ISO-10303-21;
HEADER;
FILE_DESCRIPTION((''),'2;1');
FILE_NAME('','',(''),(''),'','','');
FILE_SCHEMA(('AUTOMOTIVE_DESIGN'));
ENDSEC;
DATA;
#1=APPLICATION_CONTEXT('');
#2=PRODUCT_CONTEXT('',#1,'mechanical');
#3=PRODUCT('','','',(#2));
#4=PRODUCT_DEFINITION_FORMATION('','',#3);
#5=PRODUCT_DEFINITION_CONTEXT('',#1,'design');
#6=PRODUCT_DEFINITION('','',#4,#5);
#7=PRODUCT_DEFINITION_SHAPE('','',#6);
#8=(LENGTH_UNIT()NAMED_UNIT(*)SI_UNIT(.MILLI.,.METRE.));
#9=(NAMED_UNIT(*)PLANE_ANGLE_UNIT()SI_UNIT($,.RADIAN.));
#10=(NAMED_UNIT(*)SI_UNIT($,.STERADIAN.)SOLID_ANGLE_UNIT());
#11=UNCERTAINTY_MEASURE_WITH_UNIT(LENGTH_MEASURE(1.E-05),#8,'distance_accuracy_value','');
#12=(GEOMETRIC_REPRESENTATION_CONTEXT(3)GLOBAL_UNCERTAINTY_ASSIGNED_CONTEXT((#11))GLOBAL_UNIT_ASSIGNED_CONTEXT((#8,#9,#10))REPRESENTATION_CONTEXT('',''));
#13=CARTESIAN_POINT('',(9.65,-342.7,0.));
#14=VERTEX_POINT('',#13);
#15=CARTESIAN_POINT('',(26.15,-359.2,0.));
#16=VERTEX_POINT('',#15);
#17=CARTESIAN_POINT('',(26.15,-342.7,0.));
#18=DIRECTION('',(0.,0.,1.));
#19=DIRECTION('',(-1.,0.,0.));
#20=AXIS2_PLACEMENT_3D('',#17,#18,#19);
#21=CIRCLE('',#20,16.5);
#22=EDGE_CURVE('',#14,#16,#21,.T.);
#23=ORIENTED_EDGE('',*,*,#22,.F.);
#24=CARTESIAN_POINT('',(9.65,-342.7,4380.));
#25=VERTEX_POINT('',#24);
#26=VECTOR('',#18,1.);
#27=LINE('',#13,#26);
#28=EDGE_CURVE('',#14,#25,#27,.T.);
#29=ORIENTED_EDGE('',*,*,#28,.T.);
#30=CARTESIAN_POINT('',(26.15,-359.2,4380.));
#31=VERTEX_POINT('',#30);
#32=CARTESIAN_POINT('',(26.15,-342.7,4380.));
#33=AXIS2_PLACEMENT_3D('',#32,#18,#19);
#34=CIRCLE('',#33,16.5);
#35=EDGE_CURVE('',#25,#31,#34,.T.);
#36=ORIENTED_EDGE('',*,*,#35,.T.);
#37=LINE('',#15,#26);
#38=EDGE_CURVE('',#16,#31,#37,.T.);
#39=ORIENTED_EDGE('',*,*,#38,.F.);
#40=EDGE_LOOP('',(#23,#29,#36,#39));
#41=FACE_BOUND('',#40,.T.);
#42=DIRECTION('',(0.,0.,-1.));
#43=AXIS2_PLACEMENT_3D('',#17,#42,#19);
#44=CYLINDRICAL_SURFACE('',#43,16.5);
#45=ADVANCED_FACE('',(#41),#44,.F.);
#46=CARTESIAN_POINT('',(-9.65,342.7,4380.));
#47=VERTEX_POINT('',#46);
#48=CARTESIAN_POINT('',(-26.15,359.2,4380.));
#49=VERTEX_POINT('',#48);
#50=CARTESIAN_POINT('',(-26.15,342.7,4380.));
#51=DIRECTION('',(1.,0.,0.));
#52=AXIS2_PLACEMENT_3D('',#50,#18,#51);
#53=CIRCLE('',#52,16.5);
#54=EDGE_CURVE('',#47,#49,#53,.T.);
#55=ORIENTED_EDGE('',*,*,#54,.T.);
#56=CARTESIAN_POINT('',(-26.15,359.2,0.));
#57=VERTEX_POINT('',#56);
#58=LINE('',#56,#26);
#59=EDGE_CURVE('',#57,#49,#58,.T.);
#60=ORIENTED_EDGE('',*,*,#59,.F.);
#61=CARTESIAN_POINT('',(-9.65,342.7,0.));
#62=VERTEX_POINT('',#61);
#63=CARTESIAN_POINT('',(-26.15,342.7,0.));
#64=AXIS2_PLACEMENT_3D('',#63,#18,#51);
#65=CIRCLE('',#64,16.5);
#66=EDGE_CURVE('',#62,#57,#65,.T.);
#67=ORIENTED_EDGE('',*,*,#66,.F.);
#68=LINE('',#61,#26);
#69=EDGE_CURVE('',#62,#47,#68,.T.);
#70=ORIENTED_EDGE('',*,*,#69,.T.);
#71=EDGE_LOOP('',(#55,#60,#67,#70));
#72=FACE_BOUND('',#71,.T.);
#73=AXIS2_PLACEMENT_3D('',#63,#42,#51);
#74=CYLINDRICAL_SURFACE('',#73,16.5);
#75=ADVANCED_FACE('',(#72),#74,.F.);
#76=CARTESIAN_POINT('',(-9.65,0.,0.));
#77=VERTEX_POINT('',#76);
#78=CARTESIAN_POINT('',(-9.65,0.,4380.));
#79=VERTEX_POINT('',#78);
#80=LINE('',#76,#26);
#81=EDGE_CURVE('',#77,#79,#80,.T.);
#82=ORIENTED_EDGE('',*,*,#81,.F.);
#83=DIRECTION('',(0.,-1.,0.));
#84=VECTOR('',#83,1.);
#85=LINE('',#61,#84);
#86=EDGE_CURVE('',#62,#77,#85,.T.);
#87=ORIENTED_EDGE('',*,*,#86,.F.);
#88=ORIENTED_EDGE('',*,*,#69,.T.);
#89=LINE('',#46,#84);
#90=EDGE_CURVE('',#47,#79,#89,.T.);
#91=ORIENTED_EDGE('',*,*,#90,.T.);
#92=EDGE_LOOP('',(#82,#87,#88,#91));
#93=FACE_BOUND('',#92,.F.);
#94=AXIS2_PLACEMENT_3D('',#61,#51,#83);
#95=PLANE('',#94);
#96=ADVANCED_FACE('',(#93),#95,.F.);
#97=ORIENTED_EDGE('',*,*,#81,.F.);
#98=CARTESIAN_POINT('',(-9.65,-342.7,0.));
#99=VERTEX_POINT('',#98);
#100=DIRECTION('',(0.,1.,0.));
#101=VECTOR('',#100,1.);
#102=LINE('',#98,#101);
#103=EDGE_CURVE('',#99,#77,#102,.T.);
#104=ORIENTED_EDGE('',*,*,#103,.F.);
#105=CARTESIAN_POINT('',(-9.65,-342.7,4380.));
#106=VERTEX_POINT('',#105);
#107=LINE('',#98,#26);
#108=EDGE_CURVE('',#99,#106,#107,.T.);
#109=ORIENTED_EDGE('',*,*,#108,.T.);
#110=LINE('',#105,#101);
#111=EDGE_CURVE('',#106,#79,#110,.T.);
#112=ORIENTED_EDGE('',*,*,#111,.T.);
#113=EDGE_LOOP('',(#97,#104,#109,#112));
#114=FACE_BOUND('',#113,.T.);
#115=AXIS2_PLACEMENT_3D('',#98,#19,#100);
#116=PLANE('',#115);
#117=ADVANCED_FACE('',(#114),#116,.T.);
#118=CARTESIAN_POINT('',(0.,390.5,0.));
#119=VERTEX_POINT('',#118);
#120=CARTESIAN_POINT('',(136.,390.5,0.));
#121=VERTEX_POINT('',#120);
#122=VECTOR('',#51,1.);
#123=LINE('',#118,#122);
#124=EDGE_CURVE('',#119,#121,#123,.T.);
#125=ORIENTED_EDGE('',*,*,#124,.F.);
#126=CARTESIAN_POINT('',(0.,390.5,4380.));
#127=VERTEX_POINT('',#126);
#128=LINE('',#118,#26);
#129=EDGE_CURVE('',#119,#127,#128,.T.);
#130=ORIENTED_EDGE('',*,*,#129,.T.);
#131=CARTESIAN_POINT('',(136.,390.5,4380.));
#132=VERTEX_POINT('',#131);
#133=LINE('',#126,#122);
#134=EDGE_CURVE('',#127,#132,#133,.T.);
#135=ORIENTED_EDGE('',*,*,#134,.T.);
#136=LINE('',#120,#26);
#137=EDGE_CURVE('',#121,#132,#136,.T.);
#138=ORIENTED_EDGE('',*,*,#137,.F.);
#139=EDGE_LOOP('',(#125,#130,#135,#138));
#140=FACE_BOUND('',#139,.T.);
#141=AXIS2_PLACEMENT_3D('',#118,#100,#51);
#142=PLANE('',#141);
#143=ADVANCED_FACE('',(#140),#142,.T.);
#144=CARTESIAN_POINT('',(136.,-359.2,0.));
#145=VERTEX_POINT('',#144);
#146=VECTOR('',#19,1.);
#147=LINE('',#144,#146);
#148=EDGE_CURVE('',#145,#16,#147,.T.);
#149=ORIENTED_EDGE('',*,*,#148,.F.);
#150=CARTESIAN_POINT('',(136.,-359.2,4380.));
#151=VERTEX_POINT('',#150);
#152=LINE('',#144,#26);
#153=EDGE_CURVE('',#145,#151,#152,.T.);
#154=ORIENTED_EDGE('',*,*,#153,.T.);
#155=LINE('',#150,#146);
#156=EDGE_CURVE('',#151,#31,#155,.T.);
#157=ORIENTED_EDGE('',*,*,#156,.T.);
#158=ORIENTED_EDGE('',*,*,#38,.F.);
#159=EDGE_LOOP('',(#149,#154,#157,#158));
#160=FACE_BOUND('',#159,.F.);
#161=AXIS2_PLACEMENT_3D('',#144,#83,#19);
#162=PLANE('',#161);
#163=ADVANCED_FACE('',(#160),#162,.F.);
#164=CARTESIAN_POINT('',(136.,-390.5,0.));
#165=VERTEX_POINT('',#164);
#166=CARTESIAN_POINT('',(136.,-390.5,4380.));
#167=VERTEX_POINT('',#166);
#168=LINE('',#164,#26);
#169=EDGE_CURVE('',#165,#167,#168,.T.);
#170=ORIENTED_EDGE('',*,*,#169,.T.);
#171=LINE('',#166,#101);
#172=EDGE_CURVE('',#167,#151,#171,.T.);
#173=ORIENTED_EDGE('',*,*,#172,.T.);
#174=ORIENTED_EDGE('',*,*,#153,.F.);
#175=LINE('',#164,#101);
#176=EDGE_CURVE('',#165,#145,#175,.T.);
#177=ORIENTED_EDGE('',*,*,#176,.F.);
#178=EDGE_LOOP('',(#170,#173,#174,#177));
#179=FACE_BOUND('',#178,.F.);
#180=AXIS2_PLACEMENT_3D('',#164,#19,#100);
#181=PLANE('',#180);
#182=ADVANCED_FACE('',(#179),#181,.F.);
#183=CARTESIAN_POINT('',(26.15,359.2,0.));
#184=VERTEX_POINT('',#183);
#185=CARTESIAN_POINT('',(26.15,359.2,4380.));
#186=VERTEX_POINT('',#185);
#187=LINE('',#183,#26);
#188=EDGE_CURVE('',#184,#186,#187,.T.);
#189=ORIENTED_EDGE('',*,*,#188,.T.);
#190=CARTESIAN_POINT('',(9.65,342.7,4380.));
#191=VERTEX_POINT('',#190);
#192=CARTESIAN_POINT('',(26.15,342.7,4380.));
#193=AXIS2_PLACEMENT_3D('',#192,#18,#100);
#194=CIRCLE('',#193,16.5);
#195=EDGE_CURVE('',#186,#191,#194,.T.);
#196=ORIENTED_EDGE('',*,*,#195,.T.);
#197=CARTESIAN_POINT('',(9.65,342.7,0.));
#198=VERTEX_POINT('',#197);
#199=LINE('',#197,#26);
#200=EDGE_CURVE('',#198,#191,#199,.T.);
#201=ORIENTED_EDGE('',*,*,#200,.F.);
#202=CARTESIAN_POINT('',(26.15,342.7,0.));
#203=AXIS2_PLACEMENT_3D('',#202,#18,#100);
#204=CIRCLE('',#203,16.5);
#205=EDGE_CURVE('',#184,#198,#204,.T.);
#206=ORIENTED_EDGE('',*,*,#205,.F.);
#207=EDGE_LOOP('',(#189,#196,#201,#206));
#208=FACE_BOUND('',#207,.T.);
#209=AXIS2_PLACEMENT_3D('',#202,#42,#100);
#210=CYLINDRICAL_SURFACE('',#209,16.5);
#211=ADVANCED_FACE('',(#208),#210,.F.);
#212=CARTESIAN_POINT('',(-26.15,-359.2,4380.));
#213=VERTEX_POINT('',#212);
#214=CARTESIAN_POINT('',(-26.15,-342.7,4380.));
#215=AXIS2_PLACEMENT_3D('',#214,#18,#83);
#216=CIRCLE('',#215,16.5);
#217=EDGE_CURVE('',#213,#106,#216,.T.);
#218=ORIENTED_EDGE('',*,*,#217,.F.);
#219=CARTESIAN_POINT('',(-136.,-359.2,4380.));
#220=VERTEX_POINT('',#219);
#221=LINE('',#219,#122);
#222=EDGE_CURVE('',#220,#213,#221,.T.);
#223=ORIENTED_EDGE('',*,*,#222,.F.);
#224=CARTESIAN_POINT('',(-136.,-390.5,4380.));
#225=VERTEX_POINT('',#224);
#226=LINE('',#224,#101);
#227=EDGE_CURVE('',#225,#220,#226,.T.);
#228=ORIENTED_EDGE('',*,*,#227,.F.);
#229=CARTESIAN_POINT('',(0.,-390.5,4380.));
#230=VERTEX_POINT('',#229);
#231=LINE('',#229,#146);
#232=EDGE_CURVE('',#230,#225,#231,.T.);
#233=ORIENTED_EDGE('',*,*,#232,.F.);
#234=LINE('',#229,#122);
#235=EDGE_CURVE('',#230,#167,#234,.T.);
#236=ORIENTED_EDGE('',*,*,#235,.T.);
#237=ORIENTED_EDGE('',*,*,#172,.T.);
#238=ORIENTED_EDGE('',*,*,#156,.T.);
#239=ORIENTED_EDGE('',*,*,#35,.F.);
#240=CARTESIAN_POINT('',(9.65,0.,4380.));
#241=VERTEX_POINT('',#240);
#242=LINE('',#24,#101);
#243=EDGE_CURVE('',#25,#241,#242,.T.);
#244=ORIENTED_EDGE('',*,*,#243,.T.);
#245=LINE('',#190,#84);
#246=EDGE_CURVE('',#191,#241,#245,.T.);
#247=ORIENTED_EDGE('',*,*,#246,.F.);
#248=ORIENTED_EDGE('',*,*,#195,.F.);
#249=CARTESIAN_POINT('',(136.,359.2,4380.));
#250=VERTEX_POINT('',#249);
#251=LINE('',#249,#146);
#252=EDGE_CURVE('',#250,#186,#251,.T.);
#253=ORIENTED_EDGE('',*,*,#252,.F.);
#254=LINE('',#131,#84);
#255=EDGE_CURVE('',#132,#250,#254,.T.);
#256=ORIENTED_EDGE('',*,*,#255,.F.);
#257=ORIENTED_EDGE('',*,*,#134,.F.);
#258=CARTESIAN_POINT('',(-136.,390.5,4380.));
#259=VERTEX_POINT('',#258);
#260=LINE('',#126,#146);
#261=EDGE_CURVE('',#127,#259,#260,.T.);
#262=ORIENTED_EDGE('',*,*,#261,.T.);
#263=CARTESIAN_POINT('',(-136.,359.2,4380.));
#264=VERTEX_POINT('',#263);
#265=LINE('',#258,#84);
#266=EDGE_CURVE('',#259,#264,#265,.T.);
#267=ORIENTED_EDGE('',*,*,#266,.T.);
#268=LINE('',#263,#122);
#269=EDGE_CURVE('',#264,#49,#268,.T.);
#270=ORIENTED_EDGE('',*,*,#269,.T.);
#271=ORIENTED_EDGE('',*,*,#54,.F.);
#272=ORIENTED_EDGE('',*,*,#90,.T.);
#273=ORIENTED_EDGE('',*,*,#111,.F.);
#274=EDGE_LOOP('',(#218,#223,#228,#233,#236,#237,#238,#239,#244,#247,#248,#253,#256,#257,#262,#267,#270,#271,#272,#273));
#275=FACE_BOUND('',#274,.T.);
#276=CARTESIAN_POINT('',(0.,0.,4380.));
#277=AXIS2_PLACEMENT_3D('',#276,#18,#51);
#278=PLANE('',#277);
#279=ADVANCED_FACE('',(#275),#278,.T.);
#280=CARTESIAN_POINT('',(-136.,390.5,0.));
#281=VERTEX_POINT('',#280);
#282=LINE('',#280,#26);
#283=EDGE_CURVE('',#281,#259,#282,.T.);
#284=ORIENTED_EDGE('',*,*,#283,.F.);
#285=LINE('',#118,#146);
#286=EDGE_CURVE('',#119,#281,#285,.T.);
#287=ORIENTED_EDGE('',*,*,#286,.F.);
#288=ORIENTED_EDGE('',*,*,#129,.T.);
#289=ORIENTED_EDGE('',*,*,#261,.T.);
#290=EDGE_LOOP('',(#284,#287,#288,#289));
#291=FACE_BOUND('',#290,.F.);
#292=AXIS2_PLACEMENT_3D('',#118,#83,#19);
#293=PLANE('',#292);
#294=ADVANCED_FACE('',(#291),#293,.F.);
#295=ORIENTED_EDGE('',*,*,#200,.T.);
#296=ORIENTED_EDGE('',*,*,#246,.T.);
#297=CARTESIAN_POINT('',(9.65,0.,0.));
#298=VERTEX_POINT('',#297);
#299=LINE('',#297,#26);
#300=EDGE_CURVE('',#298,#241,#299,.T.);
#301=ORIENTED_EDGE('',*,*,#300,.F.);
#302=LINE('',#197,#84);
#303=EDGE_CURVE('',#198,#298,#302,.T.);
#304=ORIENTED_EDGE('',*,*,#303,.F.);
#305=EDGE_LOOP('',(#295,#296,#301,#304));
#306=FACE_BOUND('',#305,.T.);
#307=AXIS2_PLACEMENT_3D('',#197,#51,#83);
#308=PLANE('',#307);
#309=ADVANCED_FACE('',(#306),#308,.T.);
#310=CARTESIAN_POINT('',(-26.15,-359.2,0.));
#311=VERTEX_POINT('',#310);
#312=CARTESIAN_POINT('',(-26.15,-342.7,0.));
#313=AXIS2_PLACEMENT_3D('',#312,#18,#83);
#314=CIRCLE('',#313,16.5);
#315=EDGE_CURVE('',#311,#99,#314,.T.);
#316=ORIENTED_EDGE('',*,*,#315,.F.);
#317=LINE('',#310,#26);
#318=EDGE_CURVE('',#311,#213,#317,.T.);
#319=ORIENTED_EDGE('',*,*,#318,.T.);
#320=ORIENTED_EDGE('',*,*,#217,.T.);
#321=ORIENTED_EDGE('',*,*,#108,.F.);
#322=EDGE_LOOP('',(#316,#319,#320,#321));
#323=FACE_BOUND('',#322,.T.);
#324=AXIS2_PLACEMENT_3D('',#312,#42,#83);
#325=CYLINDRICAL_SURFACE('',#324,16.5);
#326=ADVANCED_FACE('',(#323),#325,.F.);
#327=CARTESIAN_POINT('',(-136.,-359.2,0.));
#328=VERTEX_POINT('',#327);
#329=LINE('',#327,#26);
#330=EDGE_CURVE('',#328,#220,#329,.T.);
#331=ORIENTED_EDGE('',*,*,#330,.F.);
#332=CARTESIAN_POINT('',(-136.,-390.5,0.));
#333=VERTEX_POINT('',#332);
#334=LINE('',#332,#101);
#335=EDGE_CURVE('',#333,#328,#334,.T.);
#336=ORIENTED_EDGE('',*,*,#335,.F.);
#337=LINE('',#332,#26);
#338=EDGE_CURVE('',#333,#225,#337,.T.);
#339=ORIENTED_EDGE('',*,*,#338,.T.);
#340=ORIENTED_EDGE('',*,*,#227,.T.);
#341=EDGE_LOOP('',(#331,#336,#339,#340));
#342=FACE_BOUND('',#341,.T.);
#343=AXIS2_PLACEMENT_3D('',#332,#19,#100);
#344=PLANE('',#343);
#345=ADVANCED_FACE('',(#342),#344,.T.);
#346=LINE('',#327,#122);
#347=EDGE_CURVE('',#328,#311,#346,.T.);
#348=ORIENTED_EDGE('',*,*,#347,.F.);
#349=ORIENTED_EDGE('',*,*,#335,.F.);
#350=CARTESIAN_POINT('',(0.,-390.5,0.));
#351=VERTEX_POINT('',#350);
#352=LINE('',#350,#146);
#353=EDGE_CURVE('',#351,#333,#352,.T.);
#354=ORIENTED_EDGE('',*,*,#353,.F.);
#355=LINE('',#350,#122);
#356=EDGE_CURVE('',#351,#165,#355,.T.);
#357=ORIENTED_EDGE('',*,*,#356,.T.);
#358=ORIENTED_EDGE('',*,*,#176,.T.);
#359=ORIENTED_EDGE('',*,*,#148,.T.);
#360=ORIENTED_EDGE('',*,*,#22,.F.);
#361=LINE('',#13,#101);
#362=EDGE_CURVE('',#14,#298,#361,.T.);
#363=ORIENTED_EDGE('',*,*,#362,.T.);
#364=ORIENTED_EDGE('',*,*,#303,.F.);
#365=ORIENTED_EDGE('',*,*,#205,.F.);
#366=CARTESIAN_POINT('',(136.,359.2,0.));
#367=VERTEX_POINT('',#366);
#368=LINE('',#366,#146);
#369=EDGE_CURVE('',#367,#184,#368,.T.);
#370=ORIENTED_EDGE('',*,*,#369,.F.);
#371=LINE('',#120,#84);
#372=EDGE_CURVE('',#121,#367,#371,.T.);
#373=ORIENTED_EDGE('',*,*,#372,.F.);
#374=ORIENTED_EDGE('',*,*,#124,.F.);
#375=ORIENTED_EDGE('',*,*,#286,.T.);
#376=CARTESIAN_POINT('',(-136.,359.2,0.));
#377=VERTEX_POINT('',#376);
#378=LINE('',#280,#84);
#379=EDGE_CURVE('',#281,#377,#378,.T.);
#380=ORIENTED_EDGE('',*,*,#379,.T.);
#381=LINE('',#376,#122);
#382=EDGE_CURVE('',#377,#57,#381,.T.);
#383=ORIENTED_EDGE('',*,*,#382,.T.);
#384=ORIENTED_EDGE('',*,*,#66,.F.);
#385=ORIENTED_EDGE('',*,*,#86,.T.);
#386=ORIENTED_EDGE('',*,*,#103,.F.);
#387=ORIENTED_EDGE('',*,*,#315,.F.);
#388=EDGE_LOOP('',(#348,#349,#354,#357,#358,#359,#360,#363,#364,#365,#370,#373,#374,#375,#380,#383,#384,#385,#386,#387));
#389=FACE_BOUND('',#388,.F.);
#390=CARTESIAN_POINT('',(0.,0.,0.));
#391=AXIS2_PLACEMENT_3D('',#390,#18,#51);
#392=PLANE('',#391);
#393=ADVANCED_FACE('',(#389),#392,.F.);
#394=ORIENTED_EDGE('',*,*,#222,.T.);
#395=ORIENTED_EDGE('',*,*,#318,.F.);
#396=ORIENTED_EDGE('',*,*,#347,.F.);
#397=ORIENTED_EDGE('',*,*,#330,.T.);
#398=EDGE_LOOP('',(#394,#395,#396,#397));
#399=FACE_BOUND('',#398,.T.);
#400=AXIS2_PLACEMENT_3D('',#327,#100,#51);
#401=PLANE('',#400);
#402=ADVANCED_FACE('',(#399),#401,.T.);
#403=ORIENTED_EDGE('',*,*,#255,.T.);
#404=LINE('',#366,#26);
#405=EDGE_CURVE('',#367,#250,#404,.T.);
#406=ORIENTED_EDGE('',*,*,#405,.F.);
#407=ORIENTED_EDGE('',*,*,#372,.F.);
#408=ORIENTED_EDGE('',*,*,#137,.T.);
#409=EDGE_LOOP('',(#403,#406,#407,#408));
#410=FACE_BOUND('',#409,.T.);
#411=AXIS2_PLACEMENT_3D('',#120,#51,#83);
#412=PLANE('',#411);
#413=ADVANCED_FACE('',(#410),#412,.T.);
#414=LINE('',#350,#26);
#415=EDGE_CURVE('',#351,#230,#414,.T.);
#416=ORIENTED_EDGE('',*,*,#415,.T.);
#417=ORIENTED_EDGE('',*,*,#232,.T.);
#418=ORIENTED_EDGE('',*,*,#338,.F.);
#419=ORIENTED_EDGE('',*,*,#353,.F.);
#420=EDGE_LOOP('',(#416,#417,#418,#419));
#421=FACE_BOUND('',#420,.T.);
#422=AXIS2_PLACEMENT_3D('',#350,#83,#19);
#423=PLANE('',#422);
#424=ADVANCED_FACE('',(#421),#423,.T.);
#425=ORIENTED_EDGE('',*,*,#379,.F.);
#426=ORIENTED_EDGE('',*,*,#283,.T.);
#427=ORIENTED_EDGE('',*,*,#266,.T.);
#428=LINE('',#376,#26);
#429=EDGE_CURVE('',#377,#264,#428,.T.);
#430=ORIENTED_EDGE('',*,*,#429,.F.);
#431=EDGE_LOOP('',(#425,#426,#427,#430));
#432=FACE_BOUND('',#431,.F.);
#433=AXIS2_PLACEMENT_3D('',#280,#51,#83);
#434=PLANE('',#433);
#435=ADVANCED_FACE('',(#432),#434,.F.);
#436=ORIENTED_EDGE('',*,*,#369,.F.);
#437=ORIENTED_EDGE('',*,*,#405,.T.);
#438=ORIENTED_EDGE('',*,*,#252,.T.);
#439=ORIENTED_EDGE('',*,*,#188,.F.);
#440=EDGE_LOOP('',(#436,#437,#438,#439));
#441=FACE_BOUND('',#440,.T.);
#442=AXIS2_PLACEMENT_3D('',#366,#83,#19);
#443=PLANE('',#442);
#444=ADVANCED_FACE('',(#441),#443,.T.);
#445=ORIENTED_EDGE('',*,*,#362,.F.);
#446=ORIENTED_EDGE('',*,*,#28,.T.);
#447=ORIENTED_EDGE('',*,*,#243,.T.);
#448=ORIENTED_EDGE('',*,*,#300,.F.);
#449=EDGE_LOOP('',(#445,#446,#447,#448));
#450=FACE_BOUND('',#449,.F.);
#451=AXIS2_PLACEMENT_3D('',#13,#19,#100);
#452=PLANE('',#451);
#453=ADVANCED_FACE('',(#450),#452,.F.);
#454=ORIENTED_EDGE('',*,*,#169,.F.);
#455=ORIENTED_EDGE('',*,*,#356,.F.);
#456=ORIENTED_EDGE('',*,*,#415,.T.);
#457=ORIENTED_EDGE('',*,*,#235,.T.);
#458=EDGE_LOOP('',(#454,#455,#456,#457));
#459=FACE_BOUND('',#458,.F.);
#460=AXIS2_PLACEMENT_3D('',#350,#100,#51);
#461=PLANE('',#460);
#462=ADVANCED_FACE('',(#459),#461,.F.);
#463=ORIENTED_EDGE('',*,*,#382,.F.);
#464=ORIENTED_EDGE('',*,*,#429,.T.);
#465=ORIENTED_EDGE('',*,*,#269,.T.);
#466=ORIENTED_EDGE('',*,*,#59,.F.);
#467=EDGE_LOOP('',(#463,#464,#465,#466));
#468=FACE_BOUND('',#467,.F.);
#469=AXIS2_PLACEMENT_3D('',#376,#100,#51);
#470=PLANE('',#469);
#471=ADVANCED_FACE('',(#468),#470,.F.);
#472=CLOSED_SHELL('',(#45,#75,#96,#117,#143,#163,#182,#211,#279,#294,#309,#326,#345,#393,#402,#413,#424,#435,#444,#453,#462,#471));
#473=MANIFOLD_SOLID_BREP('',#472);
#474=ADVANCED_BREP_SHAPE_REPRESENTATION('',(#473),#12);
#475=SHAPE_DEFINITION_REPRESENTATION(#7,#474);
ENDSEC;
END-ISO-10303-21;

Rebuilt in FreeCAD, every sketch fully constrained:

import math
import FreeCAD as App
import Part
import Sketcher
Q = App.Units.Quantity

doc = App.newDocument("Part")
body = doc.addObject("PartDesign::Body", "Body")

sketch1 = doc.addObject("Sketcher::SketchObject", "Sketch")
body.addObject(sketch1)
sketch1.AttachmentSupport = (doc.XY_Plane, [""])
sketch1.MapMode = "FlatFace"
sketch1.addGeometry(Part.LineSegment(App.Vector(-136, -359, 0), App.Vector(-136, -390, 0)), False)
sketch1.addGeometry(Part.LineSegment(App.Vector(-136, -390, 0), App.Vector(136, -390, 0)), False)
sketch1.addGeometry(Part.LineSegment(App.Vector(136, -390, 0), App.Vector(136, -359, 0)), False)
sketch1.addGeometry(Part.LineSegment(App.Vector(136, -359, 0), App.Vector(26, -359, 0)), False)
sketch1.addGeometry(Part.ArcOfCircle(Part.Circle(App.Vector(26, -343, 0), App.Vector(0, 0, 1), 16), math.radians(180), math.radians(270)), False)
sketch1.addGeometry(Part.LineSegment(App.Vector(10, -343, 0), App.Vector(10, 343, 0)), False)
sketch1.addGeometry(Part.ArcOfCircle(Part.Circle(App.Vector(26, 343, 0), App.Vector(0, 0, 1), 16), math.radians(90), math.radians(180)), False)
sketch1.addGeometry(Part.LineSegment(App.Vector(26, 359, 0), App.Vector(136, 359, 0)), False)
sketch1.addGeometry(Part.LineSegment(App.Vector(136, 359, 0), App.Vector(136, 390, 0)), False)
sketch1.addGeometry(Part.LineSegment(App.Vector(136, 390, 0), App.Vector(-136, 390, 0)), False)
sketch1.addGeometry(Part.LineSegment(App.Vector(-136, 390, 0), App.Vector(-136, 359, 0)), False)
sketch1.addGeometry(Part.LineSegment(App.Vector(-136, 359, 0), App.Vector(-26, 359, 0)), False)
sketch1.addGeometry(Part.ArcOfCircle(Part.Circle(App.Vector(-26, 343, 0), App.Vector(0, 0, 1), 16), math.radians(0), math.radians(90)), False)
sketch1.addGeometry(Part.LineSegment(App.Vector(-10, 343, 0), App.Vector(-10, -343, 0)), False)
sketch1.addGeometry(Part.ArcOfCircle(Part.Circle(App.Vector(-26, -343, 0), App.Vector(0, 0, 1), 16), math.radians(-90), math.radians(0)), False)
sketch1.addGeometry(Part.LineSegment(App.Vector(-26, -359, 0), App.Vector(-136, -359, 0)), False)
sketch1.addConstraint(Sketcher.Constraint("Coincident", 0, 2, 1, 1))
sketch1.addConstraint(Sketcher.Constraint("Coincident", 1, 2, 2, 1))
sketch1.addConstraint(Sketcher.Constraint("Coincident", 2, 2, 3, 1))
sketch1.addConstraint(Sketcher.Constraint("Tangent", 3, 2, 4, 2))
sketch1.addConstraint(Sketcher.Constraint("Tangent", 4, 1, 5, 1))
sketch1.addConstraint(Sketcher.Constraint("Tangent", 5, 2, 6, 2))
sketch1.addConstraint(Sketcher.Constraint("Tangent", 6, 1, 7, 1))
sketch1.addConstraint(Sketcher.Constraint("Coincident", 7, 2, 8, 1))
sketch1.addConstraint(Sketcher.Constraint("Coincident", 8, 2, 9, 1))
sketch1.addConstraint(Sketcher.Constraint("Coincident", 9, 2, 10, 1))
sketch1.addConstraint(Sketcher.Constraint("Coincident", 10, 2, 11, 1))
sketch1.addConstraint(Sketcher.Constraint("Tangent", 11, 2, 12, 2))
sketch1.addConstraint(Sketcher.Constraint("Tangent", 12, 1, 13, 1))
sketch1.addConstraint(Sketcher.Constraint("Tangent", 13, 2, 14, 2))
sketch1.addConstraint(Sketcher.Constraint("Tangent", 14, 1, 15, 1))
sketch1.addConstraint(Sketcher.Constraint("Coincident", 15, 2, 0, 1))
sketch1.addConstraint(Sketcher.Constraint("Vertical", 0))
sketch1.addConstraint(Sketcher.Constraint("Horizontal", 1))
sketch1.addConstraint(Sketcher.Constraint("Vertical", 2))
sketch1.addConstraint(Sketcher.Constraint("Horizontal", 3))
sketch1.addConstraint(Sketcher.Constraint("Vertical", 5))
sketch1.addConstraint(Sketcher.Constraint("Horizontal", 7))
sketch1.addConstraint(Sketcher.Constraint("Vertical", 8))
sketch1.addConstraint(Sketcher.Constraint("Horizontal", 9))
sketch1.addConstraint(Sketcher.Constraint("Vertical", 10))
sketch1.addConstraint(Sketcher.Constraint("Horizontal", 11))
sketch1.addConstraint(Sketcher.Constraint("Vertical", 13))
sketch1.addConstraint(Sketcher.Constraint("Horizontal", 15))
sketch1.addConstraint(Sketcher.Constraint("Equal", 4, 6))
sketch1.addConstraint(Sketcher.Constraint("Equal", 6, 12))
sketch1.addConstraint(Sketcher.Constraint("Equal", 12, 14))
sketch1.addConstraint(Sketcher.Constraint("Symmetric", 4, 3, 12, 3, -1, 1))
sketch1.addConstraint(Sketcher.Constraint("Symmetric", 0, 2, 8, 2, -1, 1))
sketch1.addConstraint(Sketcher.Constraint("Symmetric", 7, 2, 10, 2, -2))
sketch1.addConstraint(Sketcher.Constraint("Symmetric", 2, 2, 15, 2, -2))
sketch1.addConstraint(Sketcher.Constraint("Radius", 4, Q("16.5 mm")))
sketch1.addConstraint(Sketcher.Constraint("DistanceY", 0, 2, 0, 1, Q("31.3 mm")))
sketch1.addConstraint(Sketcher.Constraint("DistanceX", 0, 2, -1, 1, Q("136 mm")))
sketch1.addConstraint(Sketcher.Constraint("DistanceY", 0, 2, -1, 1, Q("390.5 mm")))
sketch1.addConstraint(Sketcher.Constraint("DistanceX", -1, 1, 4, 1, Q("9.65 mm")))
pad1 = doc.addObject("PartDesign::Pad", "Pad")
body.addObject(pad1)
pad1.Profile = sketch1
pad1.Length = 4380

doc.recompute()
